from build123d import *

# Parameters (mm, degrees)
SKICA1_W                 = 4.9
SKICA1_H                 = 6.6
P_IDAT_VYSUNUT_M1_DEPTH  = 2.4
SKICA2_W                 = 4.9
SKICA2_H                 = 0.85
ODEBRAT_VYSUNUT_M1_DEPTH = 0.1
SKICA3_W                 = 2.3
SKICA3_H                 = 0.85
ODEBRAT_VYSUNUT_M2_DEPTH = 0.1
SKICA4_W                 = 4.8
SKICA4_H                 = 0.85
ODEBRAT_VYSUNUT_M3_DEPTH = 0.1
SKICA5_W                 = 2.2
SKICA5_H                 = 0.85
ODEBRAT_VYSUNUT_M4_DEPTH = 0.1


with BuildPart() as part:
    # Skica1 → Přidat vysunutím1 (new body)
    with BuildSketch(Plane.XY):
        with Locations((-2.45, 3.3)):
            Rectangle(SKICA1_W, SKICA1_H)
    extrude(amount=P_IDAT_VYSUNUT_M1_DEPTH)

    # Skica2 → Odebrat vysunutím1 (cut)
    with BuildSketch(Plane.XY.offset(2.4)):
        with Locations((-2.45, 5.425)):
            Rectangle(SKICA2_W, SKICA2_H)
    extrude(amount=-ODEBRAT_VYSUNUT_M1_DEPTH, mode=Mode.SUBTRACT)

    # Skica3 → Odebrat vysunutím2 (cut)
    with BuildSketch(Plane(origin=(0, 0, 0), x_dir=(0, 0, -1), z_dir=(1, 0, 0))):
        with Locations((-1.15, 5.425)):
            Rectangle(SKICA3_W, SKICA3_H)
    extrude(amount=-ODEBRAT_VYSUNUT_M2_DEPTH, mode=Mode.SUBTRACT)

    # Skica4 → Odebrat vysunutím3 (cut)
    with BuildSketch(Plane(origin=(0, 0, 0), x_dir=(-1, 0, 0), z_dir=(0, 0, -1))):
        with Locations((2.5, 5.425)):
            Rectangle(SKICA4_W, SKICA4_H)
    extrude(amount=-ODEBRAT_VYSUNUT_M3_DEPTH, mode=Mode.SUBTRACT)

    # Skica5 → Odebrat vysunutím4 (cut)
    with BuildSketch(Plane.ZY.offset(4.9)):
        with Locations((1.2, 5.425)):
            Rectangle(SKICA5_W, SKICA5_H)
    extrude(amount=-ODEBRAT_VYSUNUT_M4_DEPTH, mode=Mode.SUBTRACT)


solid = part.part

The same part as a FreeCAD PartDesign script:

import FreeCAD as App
import Part
import Sketcher

doc = App.newDocument("Part")
params = doc.addObject("Spreadsheet::Sheet", "Params")
for row, (alias, value) in enumerate([
    ("sketch1_width", "4.9 mm"),
    ("sketch1_height", "6.6 mm"),
    ("pad1_length", "2.4 mm"),
    ("sketch2_width", "4.9 mm"),
    ("sketch2_height", "0.85 mm"),
    ("pocket1_length", "0.1 mm"),
    ("sketch3_height", "2.3 mm"),
    ("sketch3_width", "0.85 mm"),
    ("pocket2_length", "0.1 mm"),
    ("sketch4_width", "4.8 mm"),
    ("sketch4_height", "0.85 mm"),
    ("pocket3_length", "0.1 mm"),
    ("sketch5_height", "2.2 mm"),
    ("sketch5_width", "0.85 mm"),
    ("pocket4_length", "0.1 mm"),
], start=1):
    params.set(f"A{row}", alias)
    params.set(f"B{row}", "=" + value)
    params.setAlias(f"B{row}", alias)

body = doc.addObject("PartDesign::Body", "Body")

sketch1 = body.newObject("Sketcher::SketchObject", "Sketch")
sketch1.AttachmentSupport = (doc.getObject("XY_Plane"), [""])
sketch1.MapMode = "FlatFace"
sketch1.addGeometry(Part.LineSegment(App.Vector(-4.9, 6.6, 0), App.Vector(-4.9, 0, 0)), False)
sketch1.addGeometry(Part.LineSegment(App.Vector(-4.9, 0, 0), App.Vector(0, 0, 0)), False)
sketch1.addGeometry(Part.LineSegment(App.Vector(0, 0, 0), App.Vector(0, 6.6, 0)), False)
sketch1.addGeometry(Part.LineSegment(App.Vector(0, 6.6, 0), App.Vector(-4.9, 6.6, 0)), False)
sketch1.addConstraint(Sketcher.Constraint("Coincident", 0, 2, 1, 1))
sketch1.addConstraint(Sketcher.Constraint("Coincident", 1, 2, 2, 1))
sketch1.addConstraint(Sketcher.Constraint("Coincident", 2, 2, 3, 1))
sketch1.addConstraint(Sketcher.Constraint("Coincident", 3, 2, 0, 1))
sketch1.addConstraint(Sketcher.Constraint("Vertical", 0))
sketch1.addConstraint(Sketcher.Constraint("Horizontal", 1))
sketch1.addConstraint(Sketcher.Constraint("Vertical", 2))
sketch1.addConstraint(Sketcher.Constraint("Horizontal", 3))
sketch1.addConstraint(Sketcher.Constraint("Coincident", 1, 2, -1, 1))
sketch1.addConstraint(Sketcher.Constraint("DistanceX", 1, 1, 1, 2, 4.9))
sketch1.addConstraint(Sketcher.Constraint("DistanceY", 0, 2, 0, 1, 6.6))
sketch1.setExpression("Constraints[9]", "Params.sketch1_width")
sketch1.setExpression("Constraints[10]", "Params.sketch1_height")
pad1 = body.newObject("PartDesign::Pad", "Pad")
pad1.Profile = sketch1
pad1.setExpression("Length", "Params.pad1_length")

sketch2 = body.newObject("Sketcher::SketchObject", "Sketch001")
sketch2.AttachmentSupport = (doc.getObject("XY_Plane"), [""])
sketch2.MapMode = "FlatFace"
sketch2.AttachmentOffset = App.Placement(App.Vector(0, 0, 2.4), App.Rotation())
sketch2.addGeometry(Part.LineSegment(App.Vector(-4.9, 5.8, 0), App.Vector(-4.9, 5, 0)), False)
sketch2.addGeometry(Part.LineSegment(App.Vector(-4.9, 5, 0), App.Vector(0, 5, 0)), False)
sketch2.addGeometry(Part.LineSegment(App.Vector(0, 5, 0), App.Vector(0, 5.8, 0)), False)
sketch2.addGeometry(Part.LineSegment(App.Vector(0, 5.8, 0), App.Vector(-4.9, 5.8, 0)), False)
sketch2.addConstraint(Sketcher.Constraint("Coincident", 0, 2, 1, 1))
sketch2.addConstraint(Sketcher.Constraint("Coincident", 1, 2, 2, 1))
sketch2.addConstraint(Sketcher.Constraint("Coincident", 2, 2, 3, 1))
sketch2.addConstraint(Sketcher.Constraint("Coincident", 3, 2, 0, 1))
sketch2.addConstraint(Sketcher.Constraint("Vertical", 0))
sketch2.addConstraint(Sketcher.Constraint("Horizontal", 1))
sketch2.addConstraint(Sketcher.Constraint("Vertical", 2))
sketch2.addConstraint(Sketcher.Constraint("Horizontal", 3))
sketch2.addConstraint(Sketcher.Constraint("PointOnObject", 1, 2, -2))
sketch2.addConstraint(Sketcher.Constraint("DistanceX", 1, 1, 1, 2, 4.9))
sketch2.addConstraint(Sketcher.Constraint("DistanceY", -1, 1, 0, 2, 5.0))
sketch2.addConstraint(Sketcher.Constraint("DistanceY", 0, 2, 0, 1, 0.85))
sketch2.setExpression("Constraints[9]", "Params.sketch2_width")
sketch2.setExpression("Constraints[11]", "Params.sketch2_height")
pocket1 = body.newObject("PartDesign::Pocket", "Pocket")
pocket1.Profile = sketch2
pocket1.setExpression("Length", "Params.pocket1_length")

sketch3 = body.newObject("Sketcher::SketchObject", "Sketch002")
sketch3.AttachmentSupport = (doc.getObject("YZ_Plane"), [""])
sketch3.MapMode = "FlatFace"
sketch3.addGeometry(Part.LineSegment(App.Vector(5.8, 2.3, 0), App.Vector(5, 2.3, 0)), False)
sketch3.addGeometry(Part.LineSegment(App.Vector(5, 2.3, 0), App.Vector(5, 0, 0)), False)
sketch3.addGeometry(Part.LineSegment(App.Vector(5, 0, 0), App.Vector(5.8, 0, 0)), False)
sketch3.addGeometry(Part.LineSegment(App.Vector(5.8, 0, 0), App.Vector(5.8, 2.3, 0)), False)
sketch3.addConstraint(Sketcher.Constraint("Coincident", 0, 2, 1, 1))
sketch3.addConstraint(Sketcher.Constraint("Coincident", 1, 2, 2, 1))
sketch3.addConstraint(Sketcher.Constraint("Coincident", 2, 2, 3, 1))
sketch3.addConstraint(Sketcher.Constraint("Coincident", 3, 2, 0, 1))
sketch3.addConstraint(Sketcher.Constraint("Horizontal", 0))
sketch3.addConstraint(Sketcher.Constraint("Vertical", 1))
sketch3.addConstraint(Sketcher.Constraint("Horizontal", 2))
sketch3.addConstraint(Sketcher.Constraint("Vertical", 3))
sketch3.addConstraint(Sketcher.Constraint("PointOnObject", 1, 2, -1))
sketch3.addConstraint(Sketcher.Constraint("DistanceY", 1, 2, 1, 1, 2.3))
sketch3.addConstraint(Sketcher.Constraint("DistanceX", -1, 1, 0, 2, 5.0))
sketch3.addConstraint(Sketcher.Constraint("DistanceX", 0, 2, 0, 1, 0.85))
sketch3.setExpression("Constraints[9]", "Params.sketch3_height")
sketch3.setExpression("Constraints[11]", "Params.sketch3_width")
pocket2 = body.newObject("PartDesign::Pocket", "Pocket001")
pocket2.Profile = sketch3
pocket2.setExpression("Length", "Params.pocket2_length")

sketch4 = body.newObject("Sketcher::SketchObject", "Sketch003")
sketch4.AttachmentSupport = (doc.getObject("XY_Plane"), [""])
sketch4.MapMode = "FlatFace"
sketch4.addGeometry(Part.LineSegment(App.Vector(-0.1, 5.8, 0), App.Vector(-0.1, 5, 0)), False)
sketch4.addGeometry(Part.LineSegment(App.Vector(-0.1, 5, 0), App.Vector(-4.9, 5, 0)), False)
sketch4.addGeometry(Part.LineSegment(App.Vector(-4.9, 5, 0), App.Vector(-4.9, 5.8, 0)), False)
sketch4.addGeometry(Part.LineSegment(App.Vector(-4.9, 5.8, 0), App.Vector(-0.1, 5.8, 0)), False)
sketch4.addConstraint(Sketcher.Constraint("Coincident", 0, 2, 1, 1))
sketch4.addConstraint(Sketcher.Constraint("Coincident", 1, 2, 2, 1))
sketch4.addConstraint(Sketcher.Constraint("Coincident", 2, 2, 3, 1))
sketch4.addConstraint(Sketcher.Constraint("Coincident", 3, 2, 0, 1))
sketch4.addConstraint(Sketcher.Constraint("Vertical", 0))
sketch4.addConstraint(Sketcher.Constraint("Horizontal", 1))
sketch4.addConstraint(Sketcher.Constraint("Vertical", 2))
sketch4.addConstraint(Sketcher.Constraint("Horizontal", 3))
sketch4.addConstraint(Sketcher.Constraint("DistanceX", 1, 2, 1, 1, 4.8))
sketch4.addConstraint(Sketcher.Constraint("DistanceY", -1, 1, 0, 2, 5.0))
sketch4.addConstraint(Sketcher.Constraint("DistanceY", 0, 2, 0, 1, 0.85))
sketch4.addConstraint(Sketcher.Constraint("DistanceX", 0, 2, -1, 1, 0.1))
sketch4.setExpression("Constraints[8]", "Params.sketch4_width")
sketch4.setExpression("Constraints[10]", "Params.sketch4_height")
pocket3 = body.newObject("PartDesign::Pocket", "Pocket002")
pocket3.Profile = sketch4
pocket3.setExpression("Length", "Params.pocket3_length")
pocket3.Reversed = True

sketch5 = body.newObject("Sketcher::SketchObject", "Sketch004")
sketch5.AttachmentSupport = (doc.getObject("YZ_Plane"), [""])
sketch5.MapMode = "FlatFace"
sketch5.AttachmentOffset = App.Placement(App.Vector(0, 0, -4.9), App.Rotation())
sketch5.addGeometry(Part.LineSegment(App.Vector(5.8, 0.1, 0), App.Vector(5, 0.1, 0)), False)
sketch5.addGeometry(Part.LineSegment(App.Vector(5, 0.1, 0), App.Vector(5, 2.3, 0)), False)
sketch5.addGeometry(Part.LineSegment(App.Vector(5, 2.3, 0), App.Vector(5.8, 2.3, 0)), False)
sketch5.addGeometry(Part.LineSegment(App.Vector(5.8, 2.3, 0), App.Vector(5.8, 0.1, 0)), False)
sketch5.addConstraint(Sketcher.Constraint("Coincident", 0, 2, 1, 1))
sketch5.addConstraint(Sketcher.Constraint("Coincident", 1, 2, 2, 1))
sketch5.addConstraint(Sketcher.Constraint("Coincident", 2, 2, 3, 1))
sketch5.addConstraint(Sketcher.Constraint("Coincident", 3, 2, 0, 1))
sketch5.addConstraint(Sketcher.Constraint("Horizontal", 0))
sketch5.addConstraint(Sketcher.Constraint("Vertical", 1))
sketch5.addConstraint(Sketcher.Constraint("Horizontal", 2))
sketch5.addConstraint(Sketcher.Constraint("Vertical", 3))
sketch5.addConstraint(Sketcher.Constraint("DistanceY", 1, 1, 1, 2, 2.2))
sketch5.addConstraint(Sketcher.Constraint("DistanceX", -1, 1, 0, 2, 5.0))
sketch5.addConstraint(Sketcher.Constraint("DistanceX", 0, 2, 0, 1, 0.85))
sketch5.addConstraint(Sketcher.Constraint("DistanceY", -1, 1, 0, 2, 0.1))
sketch5.setExpression("Constraints[8]", "Params.sketch5_height")
sketch5.setExpression("Constraints[10]", "Params.sketch5_width")
pocket4 = body.newObject("PartDesign::Pocket", "Pocket003")
pocket4.Profile = sketch5
pocket4.setExpression("Length", "Params.pocket4_length")
pocket4.Reversed = True

doc.recompute()
